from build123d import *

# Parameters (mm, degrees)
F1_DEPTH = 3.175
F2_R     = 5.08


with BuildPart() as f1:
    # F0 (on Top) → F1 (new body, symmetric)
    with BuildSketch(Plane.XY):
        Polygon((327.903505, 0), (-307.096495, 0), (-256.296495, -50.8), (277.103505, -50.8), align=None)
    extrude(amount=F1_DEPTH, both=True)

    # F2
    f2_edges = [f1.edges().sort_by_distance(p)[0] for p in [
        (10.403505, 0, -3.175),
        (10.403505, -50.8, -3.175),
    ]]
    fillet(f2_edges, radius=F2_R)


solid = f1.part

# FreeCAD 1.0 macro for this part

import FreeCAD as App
import Part
import Sketcher
from FreeCAD import Vector
Q = App.Units.Quantity


def edges_at(feature, points):
    """Names of the edges that pass closest to the given points."""
    edges = feature.Shape.Edges
    near = lambda p: min(range(len(edges)), key=lambda i: edges[i].distToShape(Part.Vertex(*p))[0])
    return sorted({f"Edge{near(p) + 1}" for p in points})


def add_polygon(sketch, points):
    """Adds a closed chain of lines whose ends are joined by coincident constraints."""
    first, n = sketch.GeometryCount, len(points)
    for a, b in zip(points, points[1:] + points[:1]):
        sketch.addGeometry(Part.LineSegment(App.Vector(*a, 0), App.Vector(*b, 0)), False)
    for i in range(n):
        sketch.addConstraint(Sketcher.Constraint("Coincident", first + i, 2, first + (i + 1) % n, 1))

doc = App.newDocument("Part")
body = doc.addObject("PartDesign::Body", "Body")

# Sketch on XY plane
sketch1 = doc.addObject("Sketcher::SketchObject", "Sketch")
body.addObject(sketch1)
sketch1.AttachmentSupport = (doc.XY_Plane, [""])
sketch1.MapMode = "FlatFace"
add_polygon(sketch1, [(327.903505, 0), (-307.096495, 0), (-256.296495, -50.8), (277.103505, -50.8)])  # lines 0-3
sketch1.addConstraint(Sketcher.Constraint("Horizontal", 0))
sketch1.addConstraint(Sketcher.Constraint("Horizontal", 2))
sketch1.addConstraint(Sketcher.Constraint("PointOnObject", 0, 2, -1))
sketch1.addConstraint(Sketcher.Constraint("Perpendicular", 1, 3))
sketch1.addConstraint(Sketcher.Constraint("Equal", 1, 3))
sketch1.addConstraint(Sketcher.Constraint("DistanceX", 0, 2, 0, 1, Q("25 in")))
sketch1.addConstraint(Sketcher.Constraint("DistanceX", 2, 1, 2, 2, Q("21 in")))
sketch1.addConstraint(Sketcher.Constraint("DistanceX", 0, 2, -1, 1, 307.096495))
pad1 = doc.addObject("PartDesign::Pad", "Pad")
body.addObject(pad1)
pad1.Profile = sketch1
pad1.Length = Q("0.25 in")
pad1.Midplane = True
doc.recompute()

fillet = doc.addObject("PartDesign::Fillet", "Fillet")
body.addObject(fillet)
fillet.Base = (pad1, edges_at(pad1, [(10.404, 0, -3.175), (10.404, -50.8, -3.175)]))
fillet.Radius = Q("0.2 in")

doc.recompute()
